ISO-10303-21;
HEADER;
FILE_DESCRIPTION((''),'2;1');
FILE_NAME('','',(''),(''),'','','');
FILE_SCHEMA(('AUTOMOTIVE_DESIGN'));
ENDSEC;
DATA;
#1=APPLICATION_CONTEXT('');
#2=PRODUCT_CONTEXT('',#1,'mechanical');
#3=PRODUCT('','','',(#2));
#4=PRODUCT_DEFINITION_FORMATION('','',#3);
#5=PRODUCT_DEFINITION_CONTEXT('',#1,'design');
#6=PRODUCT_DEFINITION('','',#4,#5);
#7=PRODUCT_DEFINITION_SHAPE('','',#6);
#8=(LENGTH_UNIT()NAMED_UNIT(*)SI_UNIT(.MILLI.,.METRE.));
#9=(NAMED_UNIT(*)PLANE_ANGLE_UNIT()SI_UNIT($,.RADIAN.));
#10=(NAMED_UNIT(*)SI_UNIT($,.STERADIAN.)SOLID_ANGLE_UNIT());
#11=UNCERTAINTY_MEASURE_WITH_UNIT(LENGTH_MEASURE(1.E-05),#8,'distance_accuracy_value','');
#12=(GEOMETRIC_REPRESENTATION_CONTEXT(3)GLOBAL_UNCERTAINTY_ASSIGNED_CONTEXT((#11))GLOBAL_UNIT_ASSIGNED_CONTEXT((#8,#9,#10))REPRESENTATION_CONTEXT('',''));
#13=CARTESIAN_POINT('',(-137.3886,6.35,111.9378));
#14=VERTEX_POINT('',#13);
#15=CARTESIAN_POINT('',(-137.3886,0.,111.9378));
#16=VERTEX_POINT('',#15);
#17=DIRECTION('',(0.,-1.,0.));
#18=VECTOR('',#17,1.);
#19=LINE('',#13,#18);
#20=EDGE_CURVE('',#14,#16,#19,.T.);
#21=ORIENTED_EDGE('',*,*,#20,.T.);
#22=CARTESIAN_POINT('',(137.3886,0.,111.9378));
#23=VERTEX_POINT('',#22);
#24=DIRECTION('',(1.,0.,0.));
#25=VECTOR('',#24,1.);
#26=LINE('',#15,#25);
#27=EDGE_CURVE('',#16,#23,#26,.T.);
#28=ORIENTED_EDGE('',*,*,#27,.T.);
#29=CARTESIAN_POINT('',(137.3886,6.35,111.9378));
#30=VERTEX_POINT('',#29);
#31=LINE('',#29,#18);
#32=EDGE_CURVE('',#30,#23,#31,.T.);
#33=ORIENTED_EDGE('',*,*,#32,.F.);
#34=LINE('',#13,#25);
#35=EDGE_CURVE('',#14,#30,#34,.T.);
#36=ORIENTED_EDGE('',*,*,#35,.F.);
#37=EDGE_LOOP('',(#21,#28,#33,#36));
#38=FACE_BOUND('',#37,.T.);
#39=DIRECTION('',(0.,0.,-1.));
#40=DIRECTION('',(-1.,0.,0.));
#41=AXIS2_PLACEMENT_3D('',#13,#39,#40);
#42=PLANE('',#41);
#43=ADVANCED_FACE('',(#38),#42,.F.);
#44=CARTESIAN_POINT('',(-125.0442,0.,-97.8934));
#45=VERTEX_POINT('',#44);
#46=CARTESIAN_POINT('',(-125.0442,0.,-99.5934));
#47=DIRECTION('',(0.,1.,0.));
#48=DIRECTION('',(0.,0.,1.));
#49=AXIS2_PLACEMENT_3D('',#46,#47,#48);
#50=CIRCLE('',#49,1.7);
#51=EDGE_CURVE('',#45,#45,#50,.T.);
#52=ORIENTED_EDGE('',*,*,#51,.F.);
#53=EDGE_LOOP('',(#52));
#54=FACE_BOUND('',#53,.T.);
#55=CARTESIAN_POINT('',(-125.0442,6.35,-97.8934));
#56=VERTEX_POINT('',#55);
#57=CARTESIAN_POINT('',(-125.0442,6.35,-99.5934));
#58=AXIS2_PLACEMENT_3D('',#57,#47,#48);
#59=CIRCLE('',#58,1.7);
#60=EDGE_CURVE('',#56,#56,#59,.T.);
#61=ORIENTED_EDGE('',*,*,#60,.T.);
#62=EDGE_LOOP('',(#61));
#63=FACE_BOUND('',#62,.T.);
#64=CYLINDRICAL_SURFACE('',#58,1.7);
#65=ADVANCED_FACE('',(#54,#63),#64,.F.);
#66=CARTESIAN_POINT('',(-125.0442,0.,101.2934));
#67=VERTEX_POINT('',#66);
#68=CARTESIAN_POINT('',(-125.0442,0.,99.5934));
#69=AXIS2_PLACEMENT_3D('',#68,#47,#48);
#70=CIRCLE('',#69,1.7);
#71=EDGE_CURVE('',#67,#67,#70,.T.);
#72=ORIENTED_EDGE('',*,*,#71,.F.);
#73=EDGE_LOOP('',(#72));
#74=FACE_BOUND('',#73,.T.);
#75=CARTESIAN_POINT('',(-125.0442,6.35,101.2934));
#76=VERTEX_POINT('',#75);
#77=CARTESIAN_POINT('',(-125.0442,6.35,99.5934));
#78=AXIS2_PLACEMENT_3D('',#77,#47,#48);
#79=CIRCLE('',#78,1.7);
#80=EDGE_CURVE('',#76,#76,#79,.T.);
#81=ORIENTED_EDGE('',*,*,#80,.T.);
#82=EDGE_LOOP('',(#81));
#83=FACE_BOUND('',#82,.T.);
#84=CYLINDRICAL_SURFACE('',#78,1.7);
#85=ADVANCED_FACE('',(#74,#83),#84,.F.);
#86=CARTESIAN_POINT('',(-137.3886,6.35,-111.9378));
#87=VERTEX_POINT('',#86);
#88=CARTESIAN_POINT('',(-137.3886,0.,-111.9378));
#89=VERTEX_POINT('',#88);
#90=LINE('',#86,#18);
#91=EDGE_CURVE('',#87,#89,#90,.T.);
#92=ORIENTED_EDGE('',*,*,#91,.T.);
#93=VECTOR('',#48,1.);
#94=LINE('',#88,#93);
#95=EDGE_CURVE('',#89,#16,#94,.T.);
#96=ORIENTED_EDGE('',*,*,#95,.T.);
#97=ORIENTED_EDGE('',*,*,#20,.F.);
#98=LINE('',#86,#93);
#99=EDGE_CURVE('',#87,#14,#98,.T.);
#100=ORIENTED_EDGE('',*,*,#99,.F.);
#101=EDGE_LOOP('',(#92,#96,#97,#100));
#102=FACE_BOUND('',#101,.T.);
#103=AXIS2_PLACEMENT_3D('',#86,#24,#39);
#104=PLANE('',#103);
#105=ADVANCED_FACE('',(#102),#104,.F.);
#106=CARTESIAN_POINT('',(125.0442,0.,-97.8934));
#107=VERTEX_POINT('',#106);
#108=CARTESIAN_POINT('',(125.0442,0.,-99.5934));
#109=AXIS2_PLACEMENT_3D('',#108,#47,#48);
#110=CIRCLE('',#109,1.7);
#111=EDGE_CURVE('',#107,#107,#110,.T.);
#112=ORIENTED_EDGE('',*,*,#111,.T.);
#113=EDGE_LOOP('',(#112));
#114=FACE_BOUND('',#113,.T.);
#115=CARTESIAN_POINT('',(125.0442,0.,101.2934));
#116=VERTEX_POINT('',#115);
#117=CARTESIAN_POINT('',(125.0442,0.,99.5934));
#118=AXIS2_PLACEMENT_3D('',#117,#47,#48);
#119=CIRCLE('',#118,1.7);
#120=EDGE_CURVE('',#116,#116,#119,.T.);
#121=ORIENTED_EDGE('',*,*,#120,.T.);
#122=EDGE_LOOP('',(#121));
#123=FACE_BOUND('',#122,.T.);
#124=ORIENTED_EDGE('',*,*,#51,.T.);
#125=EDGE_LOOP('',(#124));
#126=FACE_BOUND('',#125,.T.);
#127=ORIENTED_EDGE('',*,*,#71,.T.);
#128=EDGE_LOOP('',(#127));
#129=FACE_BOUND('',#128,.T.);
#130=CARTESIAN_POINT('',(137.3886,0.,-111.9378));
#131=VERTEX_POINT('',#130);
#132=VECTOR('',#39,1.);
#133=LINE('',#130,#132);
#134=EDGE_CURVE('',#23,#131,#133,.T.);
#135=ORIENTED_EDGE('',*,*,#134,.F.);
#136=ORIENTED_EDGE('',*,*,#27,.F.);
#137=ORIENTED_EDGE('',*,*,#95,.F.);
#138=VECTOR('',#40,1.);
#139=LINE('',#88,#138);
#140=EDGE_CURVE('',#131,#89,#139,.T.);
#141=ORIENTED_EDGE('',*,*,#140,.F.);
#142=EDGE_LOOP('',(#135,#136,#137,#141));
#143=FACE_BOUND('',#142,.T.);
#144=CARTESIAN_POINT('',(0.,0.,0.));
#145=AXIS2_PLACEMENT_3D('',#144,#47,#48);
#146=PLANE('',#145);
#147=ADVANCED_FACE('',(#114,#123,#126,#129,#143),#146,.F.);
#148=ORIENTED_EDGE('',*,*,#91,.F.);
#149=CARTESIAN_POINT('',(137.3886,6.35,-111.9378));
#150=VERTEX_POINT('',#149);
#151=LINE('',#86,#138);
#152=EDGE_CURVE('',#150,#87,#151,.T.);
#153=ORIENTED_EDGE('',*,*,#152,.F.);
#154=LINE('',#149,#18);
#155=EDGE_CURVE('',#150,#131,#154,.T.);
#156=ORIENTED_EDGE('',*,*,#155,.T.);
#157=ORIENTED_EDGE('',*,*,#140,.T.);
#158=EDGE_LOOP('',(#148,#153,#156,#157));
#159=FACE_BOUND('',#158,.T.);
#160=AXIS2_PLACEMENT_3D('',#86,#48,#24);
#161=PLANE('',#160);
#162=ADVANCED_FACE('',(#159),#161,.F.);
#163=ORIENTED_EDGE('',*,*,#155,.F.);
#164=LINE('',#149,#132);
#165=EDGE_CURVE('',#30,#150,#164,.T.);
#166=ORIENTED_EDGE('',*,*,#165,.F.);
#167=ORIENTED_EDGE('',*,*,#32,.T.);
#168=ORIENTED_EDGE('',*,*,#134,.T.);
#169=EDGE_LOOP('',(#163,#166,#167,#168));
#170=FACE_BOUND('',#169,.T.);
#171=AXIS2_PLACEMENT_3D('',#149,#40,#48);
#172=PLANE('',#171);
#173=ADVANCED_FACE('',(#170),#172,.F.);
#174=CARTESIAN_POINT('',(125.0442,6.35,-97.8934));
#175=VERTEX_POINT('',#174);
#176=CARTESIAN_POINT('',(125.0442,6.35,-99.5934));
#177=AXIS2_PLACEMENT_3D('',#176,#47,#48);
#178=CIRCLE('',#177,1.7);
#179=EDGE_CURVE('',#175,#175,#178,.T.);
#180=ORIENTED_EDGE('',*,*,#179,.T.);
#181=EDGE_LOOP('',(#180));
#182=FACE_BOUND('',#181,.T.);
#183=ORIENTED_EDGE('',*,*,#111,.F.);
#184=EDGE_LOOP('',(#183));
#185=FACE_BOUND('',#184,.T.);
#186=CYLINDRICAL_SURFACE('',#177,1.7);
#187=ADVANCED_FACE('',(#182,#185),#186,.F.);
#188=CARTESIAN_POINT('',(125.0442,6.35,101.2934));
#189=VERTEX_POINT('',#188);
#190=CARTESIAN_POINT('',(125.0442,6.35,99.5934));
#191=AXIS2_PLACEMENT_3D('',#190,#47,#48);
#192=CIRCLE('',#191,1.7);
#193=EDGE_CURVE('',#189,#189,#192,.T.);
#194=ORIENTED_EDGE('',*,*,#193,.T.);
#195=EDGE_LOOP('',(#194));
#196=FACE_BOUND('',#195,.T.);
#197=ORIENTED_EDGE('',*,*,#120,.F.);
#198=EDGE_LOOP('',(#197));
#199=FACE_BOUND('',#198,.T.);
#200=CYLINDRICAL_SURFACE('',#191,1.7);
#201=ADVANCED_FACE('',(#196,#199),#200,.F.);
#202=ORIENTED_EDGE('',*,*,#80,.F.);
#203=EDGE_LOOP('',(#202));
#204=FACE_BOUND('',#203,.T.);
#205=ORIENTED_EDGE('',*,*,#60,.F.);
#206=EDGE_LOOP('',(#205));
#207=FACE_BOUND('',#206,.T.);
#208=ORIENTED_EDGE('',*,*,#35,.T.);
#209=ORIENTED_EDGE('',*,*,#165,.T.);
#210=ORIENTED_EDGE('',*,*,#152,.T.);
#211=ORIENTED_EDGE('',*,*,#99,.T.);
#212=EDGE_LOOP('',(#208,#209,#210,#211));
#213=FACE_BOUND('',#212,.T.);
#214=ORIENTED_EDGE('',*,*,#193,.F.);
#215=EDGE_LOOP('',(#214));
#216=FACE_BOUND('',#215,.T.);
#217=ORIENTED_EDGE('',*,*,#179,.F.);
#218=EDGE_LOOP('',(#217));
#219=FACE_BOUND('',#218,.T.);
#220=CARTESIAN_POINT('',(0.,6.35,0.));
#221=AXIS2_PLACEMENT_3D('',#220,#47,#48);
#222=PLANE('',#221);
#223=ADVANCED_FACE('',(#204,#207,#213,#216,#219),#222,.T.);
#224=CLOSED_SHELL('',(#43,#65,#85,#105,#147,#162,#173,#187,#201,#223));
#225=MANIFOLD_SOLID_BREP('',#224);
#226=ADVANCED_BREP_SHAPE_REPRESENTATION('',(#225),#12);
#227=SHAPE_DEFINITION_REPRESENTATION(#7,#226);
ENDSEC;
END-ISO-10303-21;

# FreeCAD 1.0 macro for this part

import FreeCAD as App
import Part
import Sketcher

V = App.Vector
Q = App.Units.Quantity


def add_polygon(sketch, points):
    """Adds a closed chain of lines whose ends are joined by coincident constraints."""
    first, n = sketch.GeometryCount, len(points)
    for a, b in zip(points, points[1:] + points[:1]):
        sketch.addGeometry(Part.LineSegment(App.Vector(*a, 0), App.Vector(*b, 0)), False)
    for i in range(n):
        sketch.addConstraint(Sketcher.Constraint("Coincident", first + i, 2, first + (i + 1) % n, 1))

doc = App.newDocument("Part")
params = doc.addObject("Spreadsheet::Sheet", "Params")
for row, (alias, value) in enumerate([
    ("sketch1_width", "10.818 in"),
    ("sketch1_height", "8.814 in"),
    ("pad1_length", "0.25 in"),
    ("hole_diameter", "3.4 mm"),
], start=1):
    params.set(f"A{row}", alias)
    params.set(f"B{row}", "=" + value)
    params.setAlias(f"B{row}", alias)

body = doc.addObject("PartDesign::Body", "Body")

# Sketch on XZ plane
sketch1 = body.newObject("Sketcher::SketchObject", "Sketch")
sketch1.AttachmentSupport = (doc.getObject("XZ_Plane"), [""])
sketch1.MapMode = "FlatFace"
add_polygon(sketch1, [(-137, -112), (-137, 112), (137, 112), (137, -112)])  # lines 0-3
sketch1.addConstraint(Sketcher.Constraint("Vertical", 0))
sketch1.addConstraint(Sketcher.Constraint("Horizontal", 1))
sketch1.addConstraint(Sketcher.Constraint("Vertical", 2))
sketch1.addConstraint(Sketcher.Constraint("Horizontal", 3))
sketch1.addConstraint(Sketcher.Constraint("Symmetric", 0, 2, 2, 2, -1, 1))
sketch1.addConstraint(Sketcher.Constraint("DistanceX", 1, 1, 1, 2, Q("10.818 in")))
sketch1.addConstraint(Sketcher.Constraint("DistanceY", 0, 1, 0, 2, Q("8.814 in")))
sketch1.setExpression("Constraints[9]", "Params.sketch1_width")
sketch1.setExpression("Constraints[10]", "Params.sketch1_height")
pad1 = body.newObject("PartDesign::Pad", "Pad")
pad1.Profile = sketch1
pad1.setExpression("Length", "Params.pad1_length")
pad1.Reversed = True

# Sketch on XZ plane
sketch2 = body.newObject("Sketcher::SketchObject", "Sketch001")
sketch2.AttachmentSupport = (doc.getObject("XZ_Plane"), [""])
sketch2.MapMode = "FlatFace"
sketch2.AttachmentOffset = App.Placement(V(0, 0, -0.25 * 25.4), App.Rotation())
sketch2.addGeometry(Part.Circle(V(125, 99.6, 0), V(0, 0, 1), 1.7), False)
sketch2.addGeometry(Part.Circle(V(-125, 99.6, 0), V(0, 0, 1), 1.7), False)
sketch2.addGeometry(Part.Circle(V(-125, -99.6, 0), V(0, 0, 1), 1.7), False)
sketch2.addGeometry(Part.Circle(V(125, -99.6, 0), V(0, 0, 1), 1.7), False)
sketch2.addConstraint(Sketcher.Constraint("Equal", 0, 1))
sketch2.addConstraint(Sketcher.Constraint("Equal", 1, 2))
sketch2.addConstraint(Sketcher.Constraint("Equal", 2, 3))
sketch2.addConstraint(Sketcher.Constraint("Symmetric", 0, 3, 2, 3, -1, 1))
sketch2.addConstraint(Sketcher.Constraint("Symmetric", 1, 3, 3, 3, -1, 1))
sketch2.addConstraint(Sketcher.Constraint("Symmetric", 0, 3, 1, 3, -2))
sketch2.addConstraint(Sketcher.Constraint("Diameter", 0, 3.4))
sketch2.addConstraint(Sketcher.Constraint("DistanceX", -1, 1, 0, 3, Q("4.923 in")))
sketch2.addConstraint(Sketcher.Constraint("DistanceY", -1, 1, 0, 3, Q("3.921 in")))
doc.recompute()
hole = body.newObject("PartDesign::Hole", "Hole")
hole.Profile = sketch2
hole.ThreadType = "None"
hole.setExpression("Diameter", "Params.hole_diameter")
hole.DepthType = "ThroughAll"
hole.Reversed = True

doc.recompute()
